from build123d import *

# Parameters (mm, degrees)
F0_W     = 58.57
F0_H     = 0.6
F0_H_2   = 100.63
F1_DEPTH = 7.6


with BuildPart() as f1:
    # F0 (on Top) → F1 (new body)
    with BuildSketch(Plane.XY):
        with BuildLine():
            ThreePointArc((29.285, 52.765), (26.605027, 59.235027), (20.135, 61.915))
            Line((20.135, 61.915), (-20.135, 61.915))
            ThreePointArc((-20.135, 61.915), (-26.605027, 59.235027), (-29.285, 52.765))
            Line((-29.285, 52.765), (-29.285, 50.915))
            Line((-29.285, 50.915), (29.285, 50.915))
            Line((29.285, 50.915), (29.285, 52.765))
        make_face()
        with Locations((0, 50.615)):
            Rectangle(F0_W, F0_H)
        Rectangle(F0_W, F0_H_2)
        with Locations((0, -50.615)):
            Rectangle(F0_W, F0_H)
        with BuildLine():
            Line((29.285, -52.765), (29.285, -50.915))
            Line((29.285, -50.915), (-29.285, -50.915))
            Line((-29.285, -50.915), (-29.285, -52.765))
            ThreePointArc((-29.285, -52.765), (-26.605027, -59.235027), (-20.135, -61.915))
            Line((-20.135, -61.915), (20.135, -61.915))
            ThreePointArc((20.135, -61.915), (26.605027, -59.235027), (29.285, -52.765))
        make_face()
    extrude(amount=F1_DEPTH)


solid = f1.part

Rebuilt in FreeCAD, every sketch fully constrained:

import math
import FreeCAD as App
import Part
import Sketcher
from FreeCAD import Vector

doc = App.newDocument("Part")
body = doc.addObject("PartDesign::Body", "Body")

# Sketch on XY plane
sketch1 = body.newObject("Sketcher::SketchObject", "Sketch")
sketch1.AttachmentSupport = (doc.getObject("XY_Plane"), [""])
sketch1.MapMode = "FlatFace"
sketch1.addGeometry([
    Part.ArcOfCircle(Part.Circle(Vector(20, 53, 0), Vector(0, 0, 1), 9), math.radians(0), math.radians(90)),  # 0
    Part.LineSegment(Vector(20, 62, 0), Vector(-20, 62, 0)),  # 1
    Part.ArcOfCircle(Part.Circle(Vector(-20, 53, 0), Vector(0, 0, 1), 9), math.radians(90), math.radians(180)),  # 2
    Part.LineSegment(Vector(-29, 53, 0), Vector(-29, -53, 0)),  # 3
    Part.ArcOfCircle(Part.Circle(Vector(-20, -53, 0), Vector(0, 0, 1), 9), math.radians(-180), math.radians(-90)),  # 4
    Part.LineSegment(Vector(-20, -62, 0), Vector(20, -62, 0)),  # 5
    Part.ArcOfCircle(Part.Circle(Vector(20, -53, 0), Vector(0, 0, 1), 9), math.radians(-90), math.radians(0)),  # 6
    Part.LineSegment(Vector(29, -53, 0), Vector(29, 53, 0)),  # 7
], False)
sketch1.addConstraint([
    Sketcher.Constraint("Tangent", 0, 2, 1, 1),
    Sketcher.Constraint("Tangent", 1, 2, 2, 1),
    Sketcher.Constraint("Tangent", 2, 2, 3, 1),
    Sketcher.Constraint("Tangent", 3, 2, 4, 1),
    Sketcher.Constraint("Tangent", 4, 2, 5, 1),
    Sketcher.Constraint("Tangent", 5, 2, 6, 1),
    Sketcher.Constraint("Tangent", 6, 2, 7, 1),
    Sketcher.Constraint("Tangent", 7, 2, 0, 1),
    Sketcher.Constraint("Horizontal", 1),
    Sketcher.Constraint("Vertical", 3),
    Sketcher.Constraint("Horizontal", 5),
    Sketcher.Constraint("Vertical", 7),
    Sketcher.Constraint("Equal", 0, 2),
    Sketcher.Constraint("Equal", 2, 4),
    Sketcher.Constraint("Equal", 4, 6),
    Sketcher.Constraint("Symmetric", 0, 3, 4, 3, -1, 1),
    Sketcher.Constraint("Radius", 0, 9.15),
    Sketcher.Constraint("DistanceX", 1, 2, 1, 1, 40.27),
    Sketcher.Constraint("DistanceY", 3, 2, 3, 1, 105.53),
])
pad1 = body.newObject("PartDesign::Pad", "Pad")
pad1.Profile = sketch1
pad1.Length = 7.6

doc.recompute()
